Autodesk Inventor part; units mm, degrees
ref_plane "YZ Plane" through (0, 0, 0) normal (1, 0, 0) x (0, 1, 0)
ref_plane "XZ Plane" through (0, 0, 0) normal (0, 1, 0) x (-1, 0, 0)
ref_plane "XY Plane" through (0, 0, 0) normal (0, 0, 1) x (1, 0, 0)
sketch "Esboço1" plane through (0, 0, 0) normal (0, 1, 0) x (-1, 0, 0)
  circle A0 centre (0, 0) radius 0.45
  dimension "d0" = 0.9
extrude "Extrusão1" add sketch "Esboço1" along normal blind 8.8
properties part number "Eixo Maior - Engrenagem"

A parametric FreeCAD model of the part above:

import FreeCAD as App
import Part
import Sketcher
from FreeCAD import Vector

doc = App.newDocument("Part")
body = doc.addObject("PartDesign::Body", "Body")

sketch1 = body.newObject("Sketcher::SketchObject", "Sketch")
sketch1.AttachmentSupport = (doc.getObject("XZ_Plane"), [""])
sketch1.MapMode = "FlatFace"
sketch1.addGeometry(Part.Circle(Vector(0, 0, 0), Vector(0, 0, 1), 0.45), False)
sketch1.addConstraint([
    Sketcher.Constraint("Coincident", 0, 3, -1, 1),
    Sketcher.Constraint("Diameter", 0, 0.9),
])
pad1 = body.newObject("PartDesign::Pad", "Pad")
pad1.Profile = sketch1
pad1.Length = 8.8
pad1.Reversed = True

doc.recompute()
